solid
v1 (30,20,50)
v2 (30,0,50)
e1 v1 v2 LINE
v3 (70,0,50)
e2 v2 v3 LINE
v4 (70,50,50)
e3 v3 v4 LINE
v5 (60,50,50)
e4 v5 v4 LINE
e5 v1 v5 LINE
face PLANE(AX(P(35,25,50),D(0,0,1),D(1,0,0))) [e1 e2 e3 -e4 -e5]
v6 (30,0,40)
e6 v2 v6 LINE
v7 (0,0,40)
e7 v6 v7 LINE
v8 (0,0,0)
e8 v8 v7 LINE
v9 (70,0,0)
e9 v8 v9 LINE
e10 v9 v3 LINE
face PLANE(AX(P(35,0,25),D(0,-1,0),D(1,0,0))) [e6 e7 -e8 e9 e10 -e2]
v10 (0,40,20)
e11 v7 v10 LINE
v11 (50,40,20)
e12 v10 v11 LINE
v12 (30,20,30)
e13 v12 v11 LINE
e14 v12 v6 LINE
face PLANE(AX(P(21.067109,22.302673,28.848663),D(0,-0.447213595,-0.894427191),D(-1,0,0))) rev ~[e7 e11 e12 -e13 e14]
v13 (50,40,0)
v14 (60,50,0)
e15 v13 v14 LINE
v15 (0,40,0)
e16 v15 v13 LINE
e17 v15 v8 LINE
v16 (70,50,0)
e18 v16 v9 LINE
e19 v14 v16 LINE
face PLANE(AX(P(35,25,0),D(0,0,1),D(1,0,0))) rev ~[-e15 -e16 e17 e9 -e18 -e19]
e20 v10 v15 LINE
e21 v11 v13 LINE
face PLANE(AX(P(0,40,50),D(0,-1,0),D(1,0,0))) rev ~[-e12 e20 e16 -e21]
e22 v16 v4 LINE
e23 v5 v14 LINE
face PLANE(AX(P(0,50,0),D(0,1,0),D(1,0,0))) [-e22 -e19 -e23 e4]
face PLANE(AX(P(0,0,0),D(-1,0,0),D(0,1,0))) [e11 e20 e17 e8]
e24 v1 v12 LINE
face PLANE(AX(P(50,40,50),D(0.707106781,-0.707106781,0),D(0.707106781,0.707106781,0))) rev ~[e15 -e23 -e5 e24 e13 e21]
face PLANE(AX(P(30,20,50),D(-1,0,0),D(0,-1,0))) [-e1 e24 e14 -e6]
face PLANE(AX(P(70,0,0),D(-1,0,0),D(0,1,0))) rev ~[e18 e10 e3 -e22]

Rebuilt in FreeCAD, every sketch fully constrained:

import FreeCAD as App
import Part
import Sketcher
Q = App.Units.Quantity


def add_polygon(sketch, points):
    """Adds a closed chain of lines whose ends are joined by coincident constraints."""
    first, n = sketch.GeometryCount, len(points)
    for a, b in zip(points, points[1:] + points[:1]):
        sketch.addGeometry(Part.LineSegment(App.Vector(*a, 0), App.Vector(*b, 0)), False)
    for i in range(n):
        sketch.addConstraint(Sketcher.Constraint("Coincident", first + i, 2, first + (i + 1) % n, 1))

doc = App.newDocument("Part")
body = doc.addObject("PartDesign::Body", "Body")

sketch1 = doc.addObject("Sketcher::SketchObject", "Sketch")
body.addObject(sketch1)
sketch1.AttachmentSupport = (doc.XY_Plane, [""])
sketch1.MapMode = "FlatFace"
add_polygon(sketch1, [(0, 50), (0, 0), (70, 0), (70, 50)])
sketch1.addConstraint([
    Sketcher.Constraint("Vertical", 0),
    Sketcher.Constraint("Horizontal", 1),
    Sketcher.Constraint("Vertical", 2),
    Sketcher.Constraint("Horizontal", 3),
    Sketcher.Constraint("Coincident", 0, 2, -1, 1),
    Sketcher.Constraint("DistanceX", 1, 1, 1, 2, Q("70 mm")),
    Sketcher.Constraint("DistanceY", 0, 2, 0, 1, Q("50 mm")),
])
pad1 = doc.addObject("PartDesign::Pad", "Pad")
body.addObject(pad1)
pad1.Profile = sketch1
pad1.Length = 50

sketch2 = doc.addObject("Sketcher::SketchObject", "Sketch001")
body.addObject(sketch2)
sketch2.AttachmentSupport = (doc.XY_Plane, [""])
sketch2.MapMode = "FlatFace"
sketch2.AttachmentOffset = App.Placement(App.Vector(0, 0, 50), App.Rotation())
add_polygon(sketch2, [(0, 40), (50, 40), (60, 50), (0, 50)])
sketch2.addConstraint([
    Sketcher.Constraint("Horizontal", 0),
    Sketcher.Constraint("Horizontal", 2),
    Sketcher.Constraint("Vertical", 3),
    Sketcher.Constraint("PointOnObject", 2, 2, -2),
    Sketcher.Constraint("DistanceX", 0, 1, 0, 2, Q("50 mm")),
    Sketcher.Constraint("DistanceX", 2, 2, 2, 1, Q("60 mm")),
    Sketcher.Constraint("DistanceY", 3, 2, 3, 1, Q("10 mm")),
    Sketcher.Constraint("DistanceY", -1, 1, 0, 2, Q("40 mm")),
])
pocket1 = doc.addObject("PartDesign::Pocket", "Pocket")
body.addObject(pocket1)
pocket1.Profile = sketch2
pocket1.Length = 50

sketch3 = doc.addObject("Sketcher::SketchObject", "Sketch002")
body.addObject(sketch3)
sketch3.AttachmentSupport = (doc.XY_Plane, [""])
sketch3.MapMode = "FlatFace"
sketch3.AttachmentOffset = App.Placement(App.Vector(0, 0, 50), App.Rotation())
add_polygon(sketch3, [(30, 20), (50, 40), (0, 40), (0, 0), (30, 0)])
sketch3.addConstraint([
    Sketcher.Constraint("Horizontal", 1),
    Sketcher.Constraint("Vertical", 2),
    Sketcher.Constraint("Horizontal", 3),
    Sketcher.Constraint("Vertical", 4),
    Sketcher.Constraint("Coincident", 2, 2, -1, 1),
    Sketcher.Constraint("DistanceX", 1, 2, 1, 1, Q("50 mm")),
    Sketcher.Constraint("DistanceX", 3, 1, 3, 2, Q("30 mm")),
    Sketcher.Constraint("DistanceY", 2, 2, 2, 1, Q("40 mm")),
    Sketcher.Constraint("DistanceY", 4, 1, 4, 2, Q("20 mm")),
])
pocket2 = doc.addObject("PartDesign::Pocket", "Pocket001")
body.addObject(pocket2)
pocket2.Profile = sketch3
pocket2.Length = 30

sketch4 = doc.addObject("Sketcher::SketchObject", "Sketch003")
body.addObject(sketch4)
sketch4.Placement = App.Placement(App.Vector(0, 16, 32), App.Rotation(App.Vector(-1, 0, 0), App.Vector(0, 0.894427191, -0.447213595), App.Vector(0, -0.447213595, -0.894427191), "ZXY"))
add_polygon(sketch4, [(0, 27), (-50, 27), (-30, -18), (0, -18)])
sketch4.addConstraint([
    Sketcher.Constraint("Horizontal", 0),
    Sketcher.Constraint("Horizontal", 2),
    Sketcher.Constraint("Vertical", 3),
    Sketcher.Constraint("PointOnObject", 2, 2, -2),
    Sketcher.Constraint("DistanceX", 0, 2, 0, 1, Q("50 mm")),
    Sketcher.Constraint("DistanceX", 2, 1, 2, 2, Q("30 mm")),
    Sketcher.Constraint("DistanceY", 3, 1, 3, 2, Q("44.72136 mm")),
    Sketcher.Constraint("DistanceY", -1, 1, 0, 2, Q("26.832816 mm")),
])
pad2 = doc.addObject("PartDesign::Pad", "Pad001")
body.addObject(pad2)
pad2.Profile = sketch4
pad2.Length = 30

sketch5 = doc.addObject("Sketcher::SketchObject", "Sketch004")
body.addObject(sketch5)
sketch5.AttachmentSupport = (doc.XY_Plane, [""])
sketch5.MapMode = "FlatFace"
add_polygon(sketch5, [(70, 40), (70, 0), (0, 0), (0, 40)])
sketch5.addConstraint([
    Sketcher.Constraint("Vertical", 0),
    Sketcher.Constraint("Horizontal", 1),
    Sketcher.Constraint("Vertical", 2),
    Sketcher.Constraint("Horizontal", 3),
    Sketcher.Constraint("Coincident", 1, 2, -1, 1),
    Sketcher.Constraint("DistanceX", 1, 2, 1, 1, Q("70 mm")),
    Sketcher.Constraint("DistanceY", 0, 2, 0, 1, Q("40 mm")),
])
pocket3 = doc.addObject("PartDesign::Pocket", "Pocket002")
body.addObject(pocket3)
pocket3.Profile = sketch5
pocket3.Length = 30

sketch6 = doc.addObject("Sketcher::SketchObject", "Sketch005")
body.addObject(sketch6)
sketch6.AttachmentSupport = (doc.XZ_Plane, [""])
sketch6.MapMode = "FlatFace"
add_polygon(sketch6, [(0, 50), (0, 0), (70, 0), (70, 50)])
sketch6.addConstraint([
    Sketcher.Constraint("Vertical", 0),
    Sketcher.Constraint("Horizontal", 1),
    Sketcher.Constraint("Vertical", 2),
    Sketcher.Constraint("Horizontal", 3),
    Sketcher.Constraint("Coincident", 0, 2, -1, 1),
    Sketcher.Constraint("DistanceX", 1, 1, 1, 2, Q("70 mm")),
    Sketcher.Constraint("DistanceY", 0, 2, 0, 1, Q("50 mm")),
])
pocket4 = doc.addObject("PartDesign::Pocket", "Pocket003")
body.addObject(pocket4)
pocket4.Profile = sketch6
pocket4.Length = 30
pocket4.Reversed = True

doc.recompute()
